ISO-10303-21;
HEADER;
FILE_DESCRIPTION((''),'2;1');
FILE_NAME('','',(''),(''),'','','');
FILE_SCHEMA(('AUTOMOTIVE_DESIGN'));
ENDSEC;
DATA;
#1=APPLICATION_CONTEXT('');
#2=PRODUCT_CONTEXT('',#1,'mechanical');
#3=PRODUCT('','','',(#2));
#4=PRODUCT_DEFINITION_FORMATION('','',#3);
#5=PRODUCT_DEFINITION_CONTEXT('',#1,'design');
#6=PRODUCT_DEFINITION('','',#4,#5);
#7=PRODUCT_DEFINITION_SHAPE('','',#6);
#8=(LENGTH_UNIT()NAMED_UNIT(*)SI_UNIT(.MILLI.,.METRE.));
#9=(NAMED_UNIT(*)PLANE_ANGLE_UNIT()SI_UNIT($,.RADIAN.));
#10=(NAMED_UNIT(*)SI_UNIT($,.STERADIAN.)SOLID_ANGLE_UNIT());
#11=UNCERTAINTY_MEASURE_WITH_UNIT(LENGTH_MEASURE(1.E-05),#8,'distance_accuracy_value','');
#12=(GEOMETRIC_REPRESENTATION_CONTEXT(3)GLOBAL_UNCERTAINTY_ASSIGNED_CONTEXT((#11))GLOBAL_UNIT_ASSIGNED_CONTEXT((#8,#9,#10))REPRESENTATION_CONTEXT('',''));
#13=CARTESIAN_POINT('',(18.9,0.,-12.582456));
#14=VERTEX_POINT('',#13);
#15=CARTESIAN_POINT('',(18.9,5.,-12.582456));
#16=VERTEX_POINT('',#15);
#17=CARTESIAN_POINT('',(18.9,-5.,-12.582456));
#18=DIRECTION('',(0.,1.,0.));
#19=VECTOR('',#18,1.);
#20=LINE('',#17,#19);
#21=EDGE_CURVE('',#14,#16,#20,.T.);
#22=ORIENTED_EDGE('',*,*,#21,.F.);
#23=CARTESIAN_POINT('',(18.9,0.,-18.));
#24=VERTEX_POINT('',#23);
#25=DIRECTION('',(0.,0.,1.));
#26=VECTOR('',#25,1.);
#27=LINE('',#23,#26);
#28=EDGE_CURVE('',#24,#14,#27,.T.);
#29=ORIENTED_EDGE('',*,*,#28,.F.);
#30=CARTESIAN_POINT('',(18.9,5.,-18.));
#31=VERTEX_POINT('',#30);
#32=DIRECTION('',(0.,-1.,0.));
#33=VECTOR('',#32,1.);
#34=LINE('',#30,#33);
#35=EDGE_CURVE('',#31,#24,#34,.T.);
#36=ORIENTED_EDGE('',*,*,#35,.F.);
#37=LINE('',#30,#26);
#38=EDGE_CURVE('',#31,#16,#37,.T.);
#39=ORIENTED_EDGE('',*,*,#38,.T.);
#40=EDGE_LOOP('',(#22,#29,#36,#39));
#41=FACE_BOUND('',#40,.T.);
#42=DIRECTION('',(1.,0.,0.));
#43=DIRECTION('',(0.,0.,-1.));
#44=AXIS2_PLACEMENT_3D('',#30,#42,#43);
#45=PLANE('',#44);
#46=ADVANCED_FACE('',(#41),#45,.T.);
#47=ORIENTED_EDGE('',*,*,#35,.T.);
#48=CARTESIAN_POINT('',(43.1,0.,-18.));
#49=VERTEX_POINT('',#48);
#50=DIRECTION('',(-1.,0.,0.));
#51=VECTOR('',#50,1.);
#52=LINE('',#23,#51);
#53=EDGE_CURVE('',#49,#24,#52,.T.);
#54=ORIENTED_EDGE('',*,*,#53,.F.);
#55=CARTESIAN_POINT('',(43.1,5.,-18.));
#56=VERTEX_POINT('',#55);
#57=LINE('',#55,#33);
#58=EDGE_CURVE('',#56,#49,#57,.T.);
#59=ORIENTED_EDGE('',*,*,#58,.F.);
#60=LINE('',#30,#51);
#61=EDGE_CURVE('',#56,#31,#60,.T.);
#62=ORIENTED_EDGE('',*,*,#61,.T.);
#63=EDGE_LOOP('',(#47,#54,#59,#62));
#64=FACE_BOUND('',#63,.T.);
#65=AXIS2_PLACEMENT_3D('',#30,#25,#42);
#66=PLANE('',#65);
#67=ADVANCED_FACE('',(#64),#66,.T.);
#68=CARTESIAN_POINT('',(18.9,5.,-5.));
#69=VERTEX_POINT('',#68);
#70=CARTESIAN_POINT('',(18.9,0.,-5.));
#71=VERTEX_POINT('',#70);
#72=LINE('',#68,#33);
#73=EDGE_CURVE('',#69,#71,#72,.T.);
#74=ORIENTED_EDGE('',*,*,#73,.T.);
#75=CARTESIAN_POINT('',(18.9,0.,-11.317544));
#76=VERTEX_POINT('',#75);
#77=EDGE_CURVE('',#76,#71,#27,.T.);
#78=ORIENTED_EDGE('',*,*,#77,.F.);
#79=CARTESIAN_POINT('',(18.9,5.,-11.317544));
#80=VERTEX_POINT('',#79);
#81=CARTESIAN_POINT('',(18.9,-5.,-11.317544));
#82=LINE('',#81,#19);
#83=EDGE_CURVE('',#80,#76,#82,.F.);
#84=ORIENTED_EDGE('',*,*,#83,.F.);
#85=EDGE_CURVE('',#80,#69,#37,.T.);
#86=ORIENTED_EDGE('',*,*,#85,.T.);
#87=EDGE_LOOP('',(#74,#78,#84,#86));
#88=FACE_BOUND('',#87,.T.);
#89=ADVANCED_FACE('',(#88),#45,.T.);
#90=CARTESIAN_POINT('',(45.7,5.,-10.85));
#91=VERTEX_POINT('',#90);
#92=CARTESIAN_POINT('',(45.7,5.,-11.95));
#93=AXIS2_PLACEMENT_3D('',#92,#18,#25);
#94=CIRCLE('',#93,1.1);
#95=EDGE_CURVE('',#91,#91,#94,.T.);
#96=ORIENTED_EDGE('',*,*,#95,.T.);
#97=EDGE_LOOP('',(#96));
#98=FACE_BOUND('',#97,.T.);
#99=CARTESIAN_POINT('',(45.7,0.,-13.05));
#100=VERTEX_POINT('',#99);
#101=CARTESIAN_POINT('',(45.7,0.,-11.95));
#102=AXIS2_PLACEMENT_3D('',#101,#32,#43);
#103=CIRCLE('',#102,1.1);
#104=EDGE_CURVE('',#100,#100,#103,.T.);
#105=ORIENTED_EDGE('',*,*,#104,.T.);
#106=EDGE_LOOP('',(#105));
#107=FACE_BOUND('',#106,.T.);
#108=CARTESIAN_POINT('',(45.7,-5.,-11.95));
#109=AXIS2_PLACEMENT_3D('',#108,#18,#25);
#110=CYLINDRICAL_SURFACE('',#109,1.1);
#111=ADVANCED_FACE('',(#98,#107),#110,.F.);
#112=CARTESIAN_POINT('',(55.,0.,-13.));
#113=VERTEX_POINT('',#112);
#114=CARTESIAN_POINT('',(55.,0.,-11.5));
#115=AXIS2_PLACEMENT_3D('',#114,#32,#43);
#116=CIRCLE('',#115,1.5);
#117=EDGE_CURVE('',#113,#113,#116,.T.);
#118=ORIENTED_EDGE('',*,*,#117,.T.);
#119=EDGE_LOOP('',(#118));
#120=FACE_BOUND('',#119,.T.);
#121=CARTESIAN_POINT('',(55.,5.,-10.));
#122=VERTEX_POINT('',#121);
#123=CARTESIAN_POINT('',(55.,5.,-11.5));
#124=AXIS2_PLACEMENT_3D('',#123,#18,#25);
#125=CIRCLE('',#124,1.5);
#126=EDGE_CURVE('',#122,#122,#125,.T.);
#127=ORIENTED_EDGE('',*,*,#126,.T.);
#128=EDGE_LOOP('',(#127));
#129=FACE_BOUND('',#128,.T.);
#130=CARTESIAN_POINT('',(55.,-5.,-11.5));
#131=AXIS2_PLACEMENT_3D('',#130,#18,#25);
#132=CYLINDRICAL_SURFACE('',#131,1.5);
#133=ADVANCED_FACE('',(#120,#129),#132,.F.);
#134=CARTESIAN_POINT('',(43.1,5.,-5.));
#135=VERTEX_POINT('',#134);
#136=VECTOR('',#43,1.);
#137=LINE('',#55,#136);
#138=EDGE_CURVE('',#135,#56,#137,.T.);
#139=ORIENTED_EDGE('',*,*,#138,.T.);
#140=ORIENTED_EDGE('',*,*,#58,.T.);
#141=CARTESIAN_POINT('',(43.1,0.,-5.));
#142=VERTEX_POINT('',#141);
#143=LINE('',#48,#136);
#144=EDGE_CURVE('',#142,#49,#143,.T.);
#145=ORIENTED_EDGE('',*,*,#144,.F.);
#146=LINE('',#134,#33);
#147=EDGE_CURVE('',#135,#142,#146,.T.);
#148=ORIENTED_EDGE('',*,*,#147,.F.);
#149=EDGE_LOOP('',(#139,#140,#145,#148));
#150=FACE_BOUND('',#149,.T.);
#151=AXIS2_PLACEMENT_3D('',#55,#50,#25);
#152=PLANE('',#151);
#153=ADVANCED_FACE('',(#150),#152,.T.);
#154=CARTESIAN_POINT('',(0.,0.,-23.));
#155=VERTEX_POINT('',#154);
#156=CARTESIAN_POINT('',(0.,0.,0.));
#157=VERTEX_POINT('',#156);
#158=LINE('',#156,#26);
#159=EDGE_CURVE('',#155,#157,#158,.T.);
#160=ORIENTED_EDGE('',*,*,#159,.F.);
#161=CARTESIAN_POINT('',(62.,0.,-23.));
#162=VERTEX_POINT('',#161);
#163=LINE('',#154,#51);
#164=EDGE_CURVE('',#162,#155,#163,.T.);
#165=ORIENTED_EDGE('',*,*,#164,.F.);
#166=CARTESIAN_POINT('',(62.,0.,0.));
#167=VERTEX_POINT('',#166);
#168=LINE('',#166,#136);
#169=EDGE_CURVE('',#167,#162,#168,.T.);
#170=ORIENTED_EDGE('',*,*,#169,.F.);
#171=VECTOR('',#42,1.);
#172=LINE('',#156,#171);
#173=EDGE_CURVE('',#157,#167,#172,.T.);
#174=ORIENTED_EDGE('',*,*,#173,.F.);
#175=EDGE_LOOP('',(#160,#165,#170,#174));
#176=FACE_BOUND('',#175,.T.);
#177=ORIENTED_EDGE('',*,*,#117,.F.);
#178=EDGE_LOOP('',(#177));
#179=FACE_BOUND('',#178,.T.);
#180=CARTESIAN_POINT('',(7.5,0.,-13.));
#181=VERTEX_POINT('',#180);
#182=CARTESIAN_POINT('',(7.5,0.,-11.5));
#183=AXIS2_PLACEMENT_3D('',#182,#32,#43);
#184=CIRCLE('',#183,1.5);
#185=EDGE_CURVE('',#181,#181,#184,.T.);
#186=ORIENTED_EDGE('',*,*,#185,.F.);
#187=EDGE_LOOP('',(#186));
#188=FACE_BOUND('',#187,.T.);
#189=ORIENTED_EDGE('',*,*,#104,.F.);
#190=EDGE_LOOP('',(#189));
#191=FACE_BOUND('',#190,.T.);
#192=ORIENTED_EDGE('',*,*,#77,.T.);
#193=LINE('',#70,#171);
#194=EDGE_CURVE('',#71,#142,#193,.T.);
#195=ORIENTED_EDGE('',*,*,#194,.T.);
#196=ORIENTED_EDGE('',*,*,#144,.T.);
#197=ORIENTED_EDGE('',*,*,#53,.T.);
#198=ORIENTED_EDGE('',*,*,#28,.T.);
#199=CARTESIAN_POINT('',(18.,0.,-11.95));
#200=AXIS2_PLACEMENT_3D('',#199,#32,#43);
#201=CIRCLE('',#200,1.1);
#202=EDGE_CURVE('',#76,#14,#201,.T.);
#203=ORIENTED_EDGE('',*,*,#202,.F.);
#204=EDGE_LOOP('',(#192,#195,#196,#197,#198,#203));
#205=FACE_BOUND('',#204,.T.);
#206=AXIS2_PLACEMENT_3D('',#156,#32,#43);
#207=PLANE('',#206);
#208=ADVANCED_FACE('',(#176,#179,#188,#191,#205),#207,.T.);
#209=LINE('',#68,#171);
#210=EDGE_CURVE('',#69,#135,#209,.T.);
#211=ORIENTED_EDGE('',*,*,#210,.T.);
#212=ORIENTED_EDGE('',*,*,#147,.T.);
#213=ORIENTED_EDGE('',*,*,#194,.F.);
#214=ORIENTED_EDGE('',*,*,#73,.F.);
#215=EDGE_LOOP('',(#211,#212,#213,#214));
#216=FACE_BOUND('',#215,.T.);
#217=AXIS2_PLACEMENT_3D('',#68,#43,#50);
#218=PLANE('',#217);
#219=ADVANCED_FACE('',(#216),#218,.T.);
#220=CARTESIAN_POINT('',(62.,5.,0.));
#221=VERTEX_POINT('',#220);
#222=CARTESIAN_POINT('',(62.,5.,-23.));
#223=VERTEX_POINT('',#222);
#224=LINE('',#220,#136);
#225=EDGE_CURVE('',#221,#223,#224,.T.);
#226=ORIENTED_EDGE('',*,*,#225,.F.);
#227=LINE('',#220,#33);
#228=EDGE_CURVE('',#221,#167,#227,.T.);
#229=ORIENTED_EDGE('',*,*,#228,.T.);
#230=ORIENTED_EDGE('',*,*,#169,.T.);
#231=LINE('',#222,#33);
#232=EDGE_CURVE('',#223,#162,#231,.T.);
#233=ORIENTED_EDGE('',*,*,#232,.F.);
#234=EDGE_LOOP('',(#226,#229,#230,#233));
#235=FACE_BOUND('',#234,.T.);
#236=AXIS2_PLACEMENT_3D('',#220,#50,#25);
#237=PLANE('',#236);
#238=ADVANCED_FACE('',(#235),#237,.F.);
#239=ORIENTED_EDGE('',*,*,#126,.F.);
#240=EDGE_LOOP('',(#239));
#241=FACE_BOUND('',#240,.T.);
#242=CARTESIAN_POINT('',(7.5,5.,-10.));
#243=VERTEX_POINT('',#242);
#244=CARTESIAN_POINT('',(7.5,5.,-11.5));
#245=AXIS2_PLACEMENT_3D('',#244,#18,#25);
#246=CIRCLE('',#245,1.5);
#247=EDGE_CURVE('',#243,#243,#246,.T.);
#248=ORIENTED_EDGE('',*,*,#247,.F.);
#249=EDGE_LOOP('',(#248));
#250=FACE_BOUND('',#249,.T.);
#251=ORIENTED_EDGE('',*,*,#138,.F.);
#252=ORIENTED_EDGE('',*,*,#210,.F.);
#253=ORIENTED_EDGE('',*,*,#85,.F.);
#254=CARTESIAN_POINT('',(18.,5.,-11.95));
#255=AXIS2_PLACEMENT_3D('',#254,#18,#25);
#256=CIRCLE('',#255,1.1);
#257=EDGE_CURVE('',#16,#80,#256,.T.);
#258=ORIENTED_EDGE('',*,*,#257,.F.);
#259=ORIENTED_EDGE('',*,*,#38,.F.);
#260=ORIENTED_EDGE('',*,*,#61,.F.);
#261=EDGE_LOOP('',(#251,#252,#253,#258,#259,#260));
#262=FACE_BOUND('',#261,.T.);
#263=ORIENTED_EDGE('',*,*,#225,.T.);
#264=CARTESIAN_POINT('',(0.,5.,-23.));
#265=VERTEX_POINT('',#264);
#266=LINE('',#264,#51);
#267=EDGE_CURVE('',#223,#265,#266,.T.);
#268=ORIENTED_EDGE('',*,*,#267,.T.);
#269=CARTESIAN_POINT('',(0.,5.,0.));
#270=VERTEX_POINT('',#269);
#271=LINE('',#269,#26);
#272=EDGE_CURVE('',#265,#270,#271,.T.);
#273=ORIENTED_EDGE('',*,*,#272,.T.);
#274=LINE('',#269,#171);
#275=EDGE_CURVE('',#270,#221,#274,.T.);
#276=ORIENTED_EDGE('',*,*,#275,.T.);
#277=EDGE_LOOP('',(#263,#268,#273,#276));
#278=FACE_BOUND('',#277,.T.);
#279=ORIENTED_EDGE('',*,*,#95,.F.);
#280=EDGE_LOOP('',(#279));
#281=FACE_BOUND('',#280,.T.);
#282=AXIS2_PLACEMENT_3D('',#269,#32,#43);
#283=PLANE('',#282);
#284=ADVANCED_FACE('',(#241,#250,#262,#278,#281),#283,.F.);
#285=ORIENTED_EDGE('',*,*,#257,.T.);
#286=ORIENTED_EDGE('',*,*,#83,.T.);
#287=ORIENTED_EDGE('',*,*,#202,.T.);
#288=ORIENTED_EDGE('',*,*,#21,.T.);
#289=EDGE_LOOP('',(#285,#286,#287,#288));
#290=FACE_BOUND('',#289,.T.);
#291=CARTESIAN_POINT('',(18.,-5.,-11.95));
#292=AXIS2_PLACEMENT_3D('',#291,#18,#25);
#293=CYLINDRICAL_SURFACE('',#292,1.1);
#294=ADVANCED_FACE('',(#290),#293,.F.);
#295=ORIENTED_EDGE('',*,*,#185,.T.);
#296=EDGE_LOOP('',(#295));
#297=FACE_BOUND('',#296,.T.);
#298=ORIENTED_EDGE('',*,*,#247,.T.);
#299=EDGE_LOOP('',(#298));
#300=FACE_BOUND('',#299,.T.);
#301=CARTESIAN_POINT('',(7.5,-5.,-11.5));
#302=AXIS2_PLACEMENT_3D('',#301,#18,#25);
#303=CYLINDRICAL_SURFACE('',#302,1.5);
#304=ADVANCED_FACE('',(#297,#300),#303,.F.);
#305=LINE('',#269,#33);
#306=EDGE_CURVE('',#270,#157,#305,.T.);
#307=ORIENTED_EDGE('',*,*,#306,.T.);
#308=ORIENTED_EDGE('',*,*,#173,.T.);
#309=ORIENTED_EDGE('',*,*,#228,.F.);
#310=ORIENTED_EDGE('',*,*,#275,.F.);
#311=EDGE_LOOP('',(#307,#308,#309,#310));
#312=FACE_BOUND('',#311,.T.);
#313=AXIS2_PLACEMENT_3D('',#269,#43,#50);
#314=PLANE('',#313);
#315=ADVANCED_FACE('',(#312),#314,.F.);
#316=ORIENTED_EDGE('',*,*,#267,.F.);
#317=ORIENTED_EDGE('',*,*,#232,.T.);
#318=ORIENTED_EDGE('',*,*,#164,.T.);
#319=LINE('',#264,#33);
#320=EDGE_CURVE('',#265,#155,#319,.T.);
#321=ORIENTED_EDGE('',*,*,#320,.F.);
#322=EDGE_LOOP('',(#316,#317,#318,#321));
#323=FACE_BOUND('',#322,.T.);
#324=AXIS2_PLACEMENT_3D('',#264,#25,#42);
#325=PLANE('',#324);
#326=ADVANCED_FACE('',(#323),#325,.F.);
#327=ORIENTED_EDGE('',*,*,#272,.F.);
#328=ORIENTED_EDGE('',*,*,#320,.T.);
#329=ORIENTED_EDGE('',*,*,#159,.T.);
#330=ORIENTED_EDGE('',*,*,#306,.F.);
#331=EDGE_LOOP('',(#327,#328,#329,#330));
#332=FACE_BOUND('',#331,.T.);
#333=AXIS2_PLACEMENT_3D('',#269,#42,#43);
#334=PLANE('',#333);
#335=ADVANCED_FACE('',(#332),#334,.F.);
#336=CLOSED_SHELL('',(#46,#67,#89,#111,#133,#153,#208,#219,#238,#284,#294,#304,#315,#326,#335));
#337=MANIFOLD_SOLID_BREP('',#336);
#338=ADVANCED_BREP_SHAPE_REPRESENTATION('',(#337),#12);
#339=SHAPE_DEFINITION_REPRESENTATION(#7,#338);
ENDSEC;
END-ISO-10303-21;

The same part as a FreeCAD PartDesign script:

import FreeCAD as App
import Part
import Sketcher

V = App.Vector
Q = App.Units.Quantity

doc = App.newDocument("Part")
params = doc.addObject("Spreadsheet::Sheet", "Params")
for row, (alias, value) in enumerate([
    ("sketch1_width", "62 mm"),
    ("sketch1_height", "23 mm"),
    ("sketch1_height2", "13 mm"),
    ("sketch1_width2", "24.2 mm"),
    ("pad1_length", "5 mm"),
    ("sketch2_diameter", "3 mm"),
    ("sketch2_diameter2", "2.2 mm"),
    ("pocket1_length", "10 mm"),
], start=1):
    params.set(f"A{row}", alias)
    params.set(f"B{row}", "=" + value)
    params.setAlias(f"B{row}", alias)

body = doc.addObject("PartDesign::Body", "Body")

sketch1 = body.newObject("Sketcher::SketchObject", "Sketch")
sketch1.AttachmentSupport = (doc.getObject("XZ_Plane"), [""])
sketch1.MapMode = "FlatFace"
sketch1.addGeometry([
    Part.LineSegment(V(0, -23, 0), V(0, 0, 0)),
    Part.LineSegment(V(0, 0, 0), V(62, 0, 0)),
    Part.LineSegment(V(62, 0, 0), V(62, -23, 0)),
    Part.LineSegment(V(62, -23, 0), V(0, -23, 0)),
    Part.LineSegment(V(43, -5, 0), V(19, -5, 0)),
    Part.LineSegment(V(19, -5, 0), V(19, -18, 0)),
    Part.LineSegment(V(19, -18, 0), V(43, -18, 0)),
    Part.LineSegment(V(43, -18, 0), V(43, -5, 0)),
], False)
sketch1.addConstraint([
    Sketcher.Constraint("Coincident", 0, 2, 1, 1),
    Sketcher.Constraint("Coincident", 1, 2, 2, 1),
    Sketcher.Constraint("Coincident", 2, 2, 3, 1),
    Sketcher.Constraint("Coincident", 3, 2, 0, 1),
    Sketcher.Constraint("Coincident", 4, 2, 5, 1),
    Sketcher.Constraint("Coincident", 5, 2, 6, 1),
    Sketcher.Constraint("Coincident", 6, 2, 7, 1),
    Sketcher.Constraint("Coincident", 7, 2, 4, 1),
    Sketcher.Constraint("Vertical", 0),
    Sketcher.Constraint("Horizontal", 1),
    Sketcher.Constraint("Vertical", 2),
    Sketcher.Constraint("Horizontal", 3),
    Sketcher.Constraint("Horizontal", 4),
    Sketcher.Constraint("Vertical", 5),
    Sketcher.Constraint("Horizontal", 6),
    Sketcher.Constraint("Vertical", 7),
    Sketcher.Constraint("Coincident", 0, 2, -1, 1),
    Sketcher.Constraint("DistanceX", 1, 1, 1, 2, Q("62 mm")),
    Sketcher.Constraint("DistanceY", 0, 1, 0, 2, Q("23 mm")),
    Sketcher.Constraint("DistanceY", 5, 2, 5, 1, Q("13 mm")),
    Sketcher.Constraint("DistanceX", 4, 2, 4, 1, Q("24.2 mm")),
    Sketcher.Constraint("DistanceY", 4, 2, -1, 1, Q("5 mm")),
    Sketcher.Constraint("DistanceX", -1, 1, 4, 2, Q("18.9 mm")),
])
sketch1.setExpression("Constraints[17]", "Params.sketch1_width")
sketch1.setExpression("Constraints[18]", "Params.sketch1_height")
sketch1.setExpression("Constraints[19]", "Params.sketch1_height2")
sketch1.setExpression("Constraints[20]", "Params.sketch1_width2")
pad1 = body.newObject("PartDesign::Pad", "Pad")
pad1.Profile = sketch1
pad1.setExpression("Length", "Params.pad1_length")
pad1.Reversed = True

sketch2 = body.newObject("Sketcher::SketchObject", "Sketch001")
sketch2.AttachmentSupport = (doc.getObject("XZ_Plane"), [""])
sketch2.MapMode = "FlatFace"
sketch2.AttachmentOffset = App.Placement(V(0, 0, -5), App.Rotation())
sketch2.addGeometry([
    Part.Circle(V(45.7, -11.9, 0), V(0, 0, 1), 1.1),
    Part.Circle(V(18, -11.9, 0), V(0, 0, 1), 1.1),
    Part.Circle(V(7.5, -11.5, 0), V(0, 0, 1), 1.5),
    Part.Circle(V(55, -11.5, 0), V(0, 0, 1), 1.5),
], False)
sketch2.addConstraint([
    Sketcher.Constraint("Equal", 0, 1),
    Sketcher.Constraint("Equal", 2, 3),
    Sketcher.Constraint("Horizontal", 0, 3, 1, 3),
    Sketcher.Constraint("Horizontal", 2, 3, 3, 3),
    Sketcher.Constraint("Diameter", 2, Q("3 mm")),
    Sketcher.Constraint("Diameter", 0, Q("2.2 mm")),
    Sketcher.Constraint("DistanceX", -1, 1, 1, 3, Q("18 mm")),
    Sketcher.Constraint("DistanceX", -1, 1, 3, 3, Q("55 mm")),
    Sketcher.Constraint("DistanceX", -1, 1, 0, 3, Q("45.7 mm")),
    Sketcher.Constraint("DistanceX", -1, 1, 2, 3, Q("7.5 mm")),
    Sketcher.Constraint("DistanceY", 2, 3, -1, 1, Q("11.5 mm")),
    Sketcher.Constraint("DistanceY", 0, 3, -1, 1, Q("11.95 mm")),
])
sketch2.setExpression("Constraints[4]", "Params.sketch2_diameter")
sketch2.setExpression("Constraints[5]", "Params.sketch2_diameter2")
pocket1 = body.newObject("PartDesign::Pocket", "Pocket")
pocket1.Profile = sketch2
pocket1.setExpression("Length", "Params.pocket1_length")
pocket1.Reversed = True

doc.recompute()
